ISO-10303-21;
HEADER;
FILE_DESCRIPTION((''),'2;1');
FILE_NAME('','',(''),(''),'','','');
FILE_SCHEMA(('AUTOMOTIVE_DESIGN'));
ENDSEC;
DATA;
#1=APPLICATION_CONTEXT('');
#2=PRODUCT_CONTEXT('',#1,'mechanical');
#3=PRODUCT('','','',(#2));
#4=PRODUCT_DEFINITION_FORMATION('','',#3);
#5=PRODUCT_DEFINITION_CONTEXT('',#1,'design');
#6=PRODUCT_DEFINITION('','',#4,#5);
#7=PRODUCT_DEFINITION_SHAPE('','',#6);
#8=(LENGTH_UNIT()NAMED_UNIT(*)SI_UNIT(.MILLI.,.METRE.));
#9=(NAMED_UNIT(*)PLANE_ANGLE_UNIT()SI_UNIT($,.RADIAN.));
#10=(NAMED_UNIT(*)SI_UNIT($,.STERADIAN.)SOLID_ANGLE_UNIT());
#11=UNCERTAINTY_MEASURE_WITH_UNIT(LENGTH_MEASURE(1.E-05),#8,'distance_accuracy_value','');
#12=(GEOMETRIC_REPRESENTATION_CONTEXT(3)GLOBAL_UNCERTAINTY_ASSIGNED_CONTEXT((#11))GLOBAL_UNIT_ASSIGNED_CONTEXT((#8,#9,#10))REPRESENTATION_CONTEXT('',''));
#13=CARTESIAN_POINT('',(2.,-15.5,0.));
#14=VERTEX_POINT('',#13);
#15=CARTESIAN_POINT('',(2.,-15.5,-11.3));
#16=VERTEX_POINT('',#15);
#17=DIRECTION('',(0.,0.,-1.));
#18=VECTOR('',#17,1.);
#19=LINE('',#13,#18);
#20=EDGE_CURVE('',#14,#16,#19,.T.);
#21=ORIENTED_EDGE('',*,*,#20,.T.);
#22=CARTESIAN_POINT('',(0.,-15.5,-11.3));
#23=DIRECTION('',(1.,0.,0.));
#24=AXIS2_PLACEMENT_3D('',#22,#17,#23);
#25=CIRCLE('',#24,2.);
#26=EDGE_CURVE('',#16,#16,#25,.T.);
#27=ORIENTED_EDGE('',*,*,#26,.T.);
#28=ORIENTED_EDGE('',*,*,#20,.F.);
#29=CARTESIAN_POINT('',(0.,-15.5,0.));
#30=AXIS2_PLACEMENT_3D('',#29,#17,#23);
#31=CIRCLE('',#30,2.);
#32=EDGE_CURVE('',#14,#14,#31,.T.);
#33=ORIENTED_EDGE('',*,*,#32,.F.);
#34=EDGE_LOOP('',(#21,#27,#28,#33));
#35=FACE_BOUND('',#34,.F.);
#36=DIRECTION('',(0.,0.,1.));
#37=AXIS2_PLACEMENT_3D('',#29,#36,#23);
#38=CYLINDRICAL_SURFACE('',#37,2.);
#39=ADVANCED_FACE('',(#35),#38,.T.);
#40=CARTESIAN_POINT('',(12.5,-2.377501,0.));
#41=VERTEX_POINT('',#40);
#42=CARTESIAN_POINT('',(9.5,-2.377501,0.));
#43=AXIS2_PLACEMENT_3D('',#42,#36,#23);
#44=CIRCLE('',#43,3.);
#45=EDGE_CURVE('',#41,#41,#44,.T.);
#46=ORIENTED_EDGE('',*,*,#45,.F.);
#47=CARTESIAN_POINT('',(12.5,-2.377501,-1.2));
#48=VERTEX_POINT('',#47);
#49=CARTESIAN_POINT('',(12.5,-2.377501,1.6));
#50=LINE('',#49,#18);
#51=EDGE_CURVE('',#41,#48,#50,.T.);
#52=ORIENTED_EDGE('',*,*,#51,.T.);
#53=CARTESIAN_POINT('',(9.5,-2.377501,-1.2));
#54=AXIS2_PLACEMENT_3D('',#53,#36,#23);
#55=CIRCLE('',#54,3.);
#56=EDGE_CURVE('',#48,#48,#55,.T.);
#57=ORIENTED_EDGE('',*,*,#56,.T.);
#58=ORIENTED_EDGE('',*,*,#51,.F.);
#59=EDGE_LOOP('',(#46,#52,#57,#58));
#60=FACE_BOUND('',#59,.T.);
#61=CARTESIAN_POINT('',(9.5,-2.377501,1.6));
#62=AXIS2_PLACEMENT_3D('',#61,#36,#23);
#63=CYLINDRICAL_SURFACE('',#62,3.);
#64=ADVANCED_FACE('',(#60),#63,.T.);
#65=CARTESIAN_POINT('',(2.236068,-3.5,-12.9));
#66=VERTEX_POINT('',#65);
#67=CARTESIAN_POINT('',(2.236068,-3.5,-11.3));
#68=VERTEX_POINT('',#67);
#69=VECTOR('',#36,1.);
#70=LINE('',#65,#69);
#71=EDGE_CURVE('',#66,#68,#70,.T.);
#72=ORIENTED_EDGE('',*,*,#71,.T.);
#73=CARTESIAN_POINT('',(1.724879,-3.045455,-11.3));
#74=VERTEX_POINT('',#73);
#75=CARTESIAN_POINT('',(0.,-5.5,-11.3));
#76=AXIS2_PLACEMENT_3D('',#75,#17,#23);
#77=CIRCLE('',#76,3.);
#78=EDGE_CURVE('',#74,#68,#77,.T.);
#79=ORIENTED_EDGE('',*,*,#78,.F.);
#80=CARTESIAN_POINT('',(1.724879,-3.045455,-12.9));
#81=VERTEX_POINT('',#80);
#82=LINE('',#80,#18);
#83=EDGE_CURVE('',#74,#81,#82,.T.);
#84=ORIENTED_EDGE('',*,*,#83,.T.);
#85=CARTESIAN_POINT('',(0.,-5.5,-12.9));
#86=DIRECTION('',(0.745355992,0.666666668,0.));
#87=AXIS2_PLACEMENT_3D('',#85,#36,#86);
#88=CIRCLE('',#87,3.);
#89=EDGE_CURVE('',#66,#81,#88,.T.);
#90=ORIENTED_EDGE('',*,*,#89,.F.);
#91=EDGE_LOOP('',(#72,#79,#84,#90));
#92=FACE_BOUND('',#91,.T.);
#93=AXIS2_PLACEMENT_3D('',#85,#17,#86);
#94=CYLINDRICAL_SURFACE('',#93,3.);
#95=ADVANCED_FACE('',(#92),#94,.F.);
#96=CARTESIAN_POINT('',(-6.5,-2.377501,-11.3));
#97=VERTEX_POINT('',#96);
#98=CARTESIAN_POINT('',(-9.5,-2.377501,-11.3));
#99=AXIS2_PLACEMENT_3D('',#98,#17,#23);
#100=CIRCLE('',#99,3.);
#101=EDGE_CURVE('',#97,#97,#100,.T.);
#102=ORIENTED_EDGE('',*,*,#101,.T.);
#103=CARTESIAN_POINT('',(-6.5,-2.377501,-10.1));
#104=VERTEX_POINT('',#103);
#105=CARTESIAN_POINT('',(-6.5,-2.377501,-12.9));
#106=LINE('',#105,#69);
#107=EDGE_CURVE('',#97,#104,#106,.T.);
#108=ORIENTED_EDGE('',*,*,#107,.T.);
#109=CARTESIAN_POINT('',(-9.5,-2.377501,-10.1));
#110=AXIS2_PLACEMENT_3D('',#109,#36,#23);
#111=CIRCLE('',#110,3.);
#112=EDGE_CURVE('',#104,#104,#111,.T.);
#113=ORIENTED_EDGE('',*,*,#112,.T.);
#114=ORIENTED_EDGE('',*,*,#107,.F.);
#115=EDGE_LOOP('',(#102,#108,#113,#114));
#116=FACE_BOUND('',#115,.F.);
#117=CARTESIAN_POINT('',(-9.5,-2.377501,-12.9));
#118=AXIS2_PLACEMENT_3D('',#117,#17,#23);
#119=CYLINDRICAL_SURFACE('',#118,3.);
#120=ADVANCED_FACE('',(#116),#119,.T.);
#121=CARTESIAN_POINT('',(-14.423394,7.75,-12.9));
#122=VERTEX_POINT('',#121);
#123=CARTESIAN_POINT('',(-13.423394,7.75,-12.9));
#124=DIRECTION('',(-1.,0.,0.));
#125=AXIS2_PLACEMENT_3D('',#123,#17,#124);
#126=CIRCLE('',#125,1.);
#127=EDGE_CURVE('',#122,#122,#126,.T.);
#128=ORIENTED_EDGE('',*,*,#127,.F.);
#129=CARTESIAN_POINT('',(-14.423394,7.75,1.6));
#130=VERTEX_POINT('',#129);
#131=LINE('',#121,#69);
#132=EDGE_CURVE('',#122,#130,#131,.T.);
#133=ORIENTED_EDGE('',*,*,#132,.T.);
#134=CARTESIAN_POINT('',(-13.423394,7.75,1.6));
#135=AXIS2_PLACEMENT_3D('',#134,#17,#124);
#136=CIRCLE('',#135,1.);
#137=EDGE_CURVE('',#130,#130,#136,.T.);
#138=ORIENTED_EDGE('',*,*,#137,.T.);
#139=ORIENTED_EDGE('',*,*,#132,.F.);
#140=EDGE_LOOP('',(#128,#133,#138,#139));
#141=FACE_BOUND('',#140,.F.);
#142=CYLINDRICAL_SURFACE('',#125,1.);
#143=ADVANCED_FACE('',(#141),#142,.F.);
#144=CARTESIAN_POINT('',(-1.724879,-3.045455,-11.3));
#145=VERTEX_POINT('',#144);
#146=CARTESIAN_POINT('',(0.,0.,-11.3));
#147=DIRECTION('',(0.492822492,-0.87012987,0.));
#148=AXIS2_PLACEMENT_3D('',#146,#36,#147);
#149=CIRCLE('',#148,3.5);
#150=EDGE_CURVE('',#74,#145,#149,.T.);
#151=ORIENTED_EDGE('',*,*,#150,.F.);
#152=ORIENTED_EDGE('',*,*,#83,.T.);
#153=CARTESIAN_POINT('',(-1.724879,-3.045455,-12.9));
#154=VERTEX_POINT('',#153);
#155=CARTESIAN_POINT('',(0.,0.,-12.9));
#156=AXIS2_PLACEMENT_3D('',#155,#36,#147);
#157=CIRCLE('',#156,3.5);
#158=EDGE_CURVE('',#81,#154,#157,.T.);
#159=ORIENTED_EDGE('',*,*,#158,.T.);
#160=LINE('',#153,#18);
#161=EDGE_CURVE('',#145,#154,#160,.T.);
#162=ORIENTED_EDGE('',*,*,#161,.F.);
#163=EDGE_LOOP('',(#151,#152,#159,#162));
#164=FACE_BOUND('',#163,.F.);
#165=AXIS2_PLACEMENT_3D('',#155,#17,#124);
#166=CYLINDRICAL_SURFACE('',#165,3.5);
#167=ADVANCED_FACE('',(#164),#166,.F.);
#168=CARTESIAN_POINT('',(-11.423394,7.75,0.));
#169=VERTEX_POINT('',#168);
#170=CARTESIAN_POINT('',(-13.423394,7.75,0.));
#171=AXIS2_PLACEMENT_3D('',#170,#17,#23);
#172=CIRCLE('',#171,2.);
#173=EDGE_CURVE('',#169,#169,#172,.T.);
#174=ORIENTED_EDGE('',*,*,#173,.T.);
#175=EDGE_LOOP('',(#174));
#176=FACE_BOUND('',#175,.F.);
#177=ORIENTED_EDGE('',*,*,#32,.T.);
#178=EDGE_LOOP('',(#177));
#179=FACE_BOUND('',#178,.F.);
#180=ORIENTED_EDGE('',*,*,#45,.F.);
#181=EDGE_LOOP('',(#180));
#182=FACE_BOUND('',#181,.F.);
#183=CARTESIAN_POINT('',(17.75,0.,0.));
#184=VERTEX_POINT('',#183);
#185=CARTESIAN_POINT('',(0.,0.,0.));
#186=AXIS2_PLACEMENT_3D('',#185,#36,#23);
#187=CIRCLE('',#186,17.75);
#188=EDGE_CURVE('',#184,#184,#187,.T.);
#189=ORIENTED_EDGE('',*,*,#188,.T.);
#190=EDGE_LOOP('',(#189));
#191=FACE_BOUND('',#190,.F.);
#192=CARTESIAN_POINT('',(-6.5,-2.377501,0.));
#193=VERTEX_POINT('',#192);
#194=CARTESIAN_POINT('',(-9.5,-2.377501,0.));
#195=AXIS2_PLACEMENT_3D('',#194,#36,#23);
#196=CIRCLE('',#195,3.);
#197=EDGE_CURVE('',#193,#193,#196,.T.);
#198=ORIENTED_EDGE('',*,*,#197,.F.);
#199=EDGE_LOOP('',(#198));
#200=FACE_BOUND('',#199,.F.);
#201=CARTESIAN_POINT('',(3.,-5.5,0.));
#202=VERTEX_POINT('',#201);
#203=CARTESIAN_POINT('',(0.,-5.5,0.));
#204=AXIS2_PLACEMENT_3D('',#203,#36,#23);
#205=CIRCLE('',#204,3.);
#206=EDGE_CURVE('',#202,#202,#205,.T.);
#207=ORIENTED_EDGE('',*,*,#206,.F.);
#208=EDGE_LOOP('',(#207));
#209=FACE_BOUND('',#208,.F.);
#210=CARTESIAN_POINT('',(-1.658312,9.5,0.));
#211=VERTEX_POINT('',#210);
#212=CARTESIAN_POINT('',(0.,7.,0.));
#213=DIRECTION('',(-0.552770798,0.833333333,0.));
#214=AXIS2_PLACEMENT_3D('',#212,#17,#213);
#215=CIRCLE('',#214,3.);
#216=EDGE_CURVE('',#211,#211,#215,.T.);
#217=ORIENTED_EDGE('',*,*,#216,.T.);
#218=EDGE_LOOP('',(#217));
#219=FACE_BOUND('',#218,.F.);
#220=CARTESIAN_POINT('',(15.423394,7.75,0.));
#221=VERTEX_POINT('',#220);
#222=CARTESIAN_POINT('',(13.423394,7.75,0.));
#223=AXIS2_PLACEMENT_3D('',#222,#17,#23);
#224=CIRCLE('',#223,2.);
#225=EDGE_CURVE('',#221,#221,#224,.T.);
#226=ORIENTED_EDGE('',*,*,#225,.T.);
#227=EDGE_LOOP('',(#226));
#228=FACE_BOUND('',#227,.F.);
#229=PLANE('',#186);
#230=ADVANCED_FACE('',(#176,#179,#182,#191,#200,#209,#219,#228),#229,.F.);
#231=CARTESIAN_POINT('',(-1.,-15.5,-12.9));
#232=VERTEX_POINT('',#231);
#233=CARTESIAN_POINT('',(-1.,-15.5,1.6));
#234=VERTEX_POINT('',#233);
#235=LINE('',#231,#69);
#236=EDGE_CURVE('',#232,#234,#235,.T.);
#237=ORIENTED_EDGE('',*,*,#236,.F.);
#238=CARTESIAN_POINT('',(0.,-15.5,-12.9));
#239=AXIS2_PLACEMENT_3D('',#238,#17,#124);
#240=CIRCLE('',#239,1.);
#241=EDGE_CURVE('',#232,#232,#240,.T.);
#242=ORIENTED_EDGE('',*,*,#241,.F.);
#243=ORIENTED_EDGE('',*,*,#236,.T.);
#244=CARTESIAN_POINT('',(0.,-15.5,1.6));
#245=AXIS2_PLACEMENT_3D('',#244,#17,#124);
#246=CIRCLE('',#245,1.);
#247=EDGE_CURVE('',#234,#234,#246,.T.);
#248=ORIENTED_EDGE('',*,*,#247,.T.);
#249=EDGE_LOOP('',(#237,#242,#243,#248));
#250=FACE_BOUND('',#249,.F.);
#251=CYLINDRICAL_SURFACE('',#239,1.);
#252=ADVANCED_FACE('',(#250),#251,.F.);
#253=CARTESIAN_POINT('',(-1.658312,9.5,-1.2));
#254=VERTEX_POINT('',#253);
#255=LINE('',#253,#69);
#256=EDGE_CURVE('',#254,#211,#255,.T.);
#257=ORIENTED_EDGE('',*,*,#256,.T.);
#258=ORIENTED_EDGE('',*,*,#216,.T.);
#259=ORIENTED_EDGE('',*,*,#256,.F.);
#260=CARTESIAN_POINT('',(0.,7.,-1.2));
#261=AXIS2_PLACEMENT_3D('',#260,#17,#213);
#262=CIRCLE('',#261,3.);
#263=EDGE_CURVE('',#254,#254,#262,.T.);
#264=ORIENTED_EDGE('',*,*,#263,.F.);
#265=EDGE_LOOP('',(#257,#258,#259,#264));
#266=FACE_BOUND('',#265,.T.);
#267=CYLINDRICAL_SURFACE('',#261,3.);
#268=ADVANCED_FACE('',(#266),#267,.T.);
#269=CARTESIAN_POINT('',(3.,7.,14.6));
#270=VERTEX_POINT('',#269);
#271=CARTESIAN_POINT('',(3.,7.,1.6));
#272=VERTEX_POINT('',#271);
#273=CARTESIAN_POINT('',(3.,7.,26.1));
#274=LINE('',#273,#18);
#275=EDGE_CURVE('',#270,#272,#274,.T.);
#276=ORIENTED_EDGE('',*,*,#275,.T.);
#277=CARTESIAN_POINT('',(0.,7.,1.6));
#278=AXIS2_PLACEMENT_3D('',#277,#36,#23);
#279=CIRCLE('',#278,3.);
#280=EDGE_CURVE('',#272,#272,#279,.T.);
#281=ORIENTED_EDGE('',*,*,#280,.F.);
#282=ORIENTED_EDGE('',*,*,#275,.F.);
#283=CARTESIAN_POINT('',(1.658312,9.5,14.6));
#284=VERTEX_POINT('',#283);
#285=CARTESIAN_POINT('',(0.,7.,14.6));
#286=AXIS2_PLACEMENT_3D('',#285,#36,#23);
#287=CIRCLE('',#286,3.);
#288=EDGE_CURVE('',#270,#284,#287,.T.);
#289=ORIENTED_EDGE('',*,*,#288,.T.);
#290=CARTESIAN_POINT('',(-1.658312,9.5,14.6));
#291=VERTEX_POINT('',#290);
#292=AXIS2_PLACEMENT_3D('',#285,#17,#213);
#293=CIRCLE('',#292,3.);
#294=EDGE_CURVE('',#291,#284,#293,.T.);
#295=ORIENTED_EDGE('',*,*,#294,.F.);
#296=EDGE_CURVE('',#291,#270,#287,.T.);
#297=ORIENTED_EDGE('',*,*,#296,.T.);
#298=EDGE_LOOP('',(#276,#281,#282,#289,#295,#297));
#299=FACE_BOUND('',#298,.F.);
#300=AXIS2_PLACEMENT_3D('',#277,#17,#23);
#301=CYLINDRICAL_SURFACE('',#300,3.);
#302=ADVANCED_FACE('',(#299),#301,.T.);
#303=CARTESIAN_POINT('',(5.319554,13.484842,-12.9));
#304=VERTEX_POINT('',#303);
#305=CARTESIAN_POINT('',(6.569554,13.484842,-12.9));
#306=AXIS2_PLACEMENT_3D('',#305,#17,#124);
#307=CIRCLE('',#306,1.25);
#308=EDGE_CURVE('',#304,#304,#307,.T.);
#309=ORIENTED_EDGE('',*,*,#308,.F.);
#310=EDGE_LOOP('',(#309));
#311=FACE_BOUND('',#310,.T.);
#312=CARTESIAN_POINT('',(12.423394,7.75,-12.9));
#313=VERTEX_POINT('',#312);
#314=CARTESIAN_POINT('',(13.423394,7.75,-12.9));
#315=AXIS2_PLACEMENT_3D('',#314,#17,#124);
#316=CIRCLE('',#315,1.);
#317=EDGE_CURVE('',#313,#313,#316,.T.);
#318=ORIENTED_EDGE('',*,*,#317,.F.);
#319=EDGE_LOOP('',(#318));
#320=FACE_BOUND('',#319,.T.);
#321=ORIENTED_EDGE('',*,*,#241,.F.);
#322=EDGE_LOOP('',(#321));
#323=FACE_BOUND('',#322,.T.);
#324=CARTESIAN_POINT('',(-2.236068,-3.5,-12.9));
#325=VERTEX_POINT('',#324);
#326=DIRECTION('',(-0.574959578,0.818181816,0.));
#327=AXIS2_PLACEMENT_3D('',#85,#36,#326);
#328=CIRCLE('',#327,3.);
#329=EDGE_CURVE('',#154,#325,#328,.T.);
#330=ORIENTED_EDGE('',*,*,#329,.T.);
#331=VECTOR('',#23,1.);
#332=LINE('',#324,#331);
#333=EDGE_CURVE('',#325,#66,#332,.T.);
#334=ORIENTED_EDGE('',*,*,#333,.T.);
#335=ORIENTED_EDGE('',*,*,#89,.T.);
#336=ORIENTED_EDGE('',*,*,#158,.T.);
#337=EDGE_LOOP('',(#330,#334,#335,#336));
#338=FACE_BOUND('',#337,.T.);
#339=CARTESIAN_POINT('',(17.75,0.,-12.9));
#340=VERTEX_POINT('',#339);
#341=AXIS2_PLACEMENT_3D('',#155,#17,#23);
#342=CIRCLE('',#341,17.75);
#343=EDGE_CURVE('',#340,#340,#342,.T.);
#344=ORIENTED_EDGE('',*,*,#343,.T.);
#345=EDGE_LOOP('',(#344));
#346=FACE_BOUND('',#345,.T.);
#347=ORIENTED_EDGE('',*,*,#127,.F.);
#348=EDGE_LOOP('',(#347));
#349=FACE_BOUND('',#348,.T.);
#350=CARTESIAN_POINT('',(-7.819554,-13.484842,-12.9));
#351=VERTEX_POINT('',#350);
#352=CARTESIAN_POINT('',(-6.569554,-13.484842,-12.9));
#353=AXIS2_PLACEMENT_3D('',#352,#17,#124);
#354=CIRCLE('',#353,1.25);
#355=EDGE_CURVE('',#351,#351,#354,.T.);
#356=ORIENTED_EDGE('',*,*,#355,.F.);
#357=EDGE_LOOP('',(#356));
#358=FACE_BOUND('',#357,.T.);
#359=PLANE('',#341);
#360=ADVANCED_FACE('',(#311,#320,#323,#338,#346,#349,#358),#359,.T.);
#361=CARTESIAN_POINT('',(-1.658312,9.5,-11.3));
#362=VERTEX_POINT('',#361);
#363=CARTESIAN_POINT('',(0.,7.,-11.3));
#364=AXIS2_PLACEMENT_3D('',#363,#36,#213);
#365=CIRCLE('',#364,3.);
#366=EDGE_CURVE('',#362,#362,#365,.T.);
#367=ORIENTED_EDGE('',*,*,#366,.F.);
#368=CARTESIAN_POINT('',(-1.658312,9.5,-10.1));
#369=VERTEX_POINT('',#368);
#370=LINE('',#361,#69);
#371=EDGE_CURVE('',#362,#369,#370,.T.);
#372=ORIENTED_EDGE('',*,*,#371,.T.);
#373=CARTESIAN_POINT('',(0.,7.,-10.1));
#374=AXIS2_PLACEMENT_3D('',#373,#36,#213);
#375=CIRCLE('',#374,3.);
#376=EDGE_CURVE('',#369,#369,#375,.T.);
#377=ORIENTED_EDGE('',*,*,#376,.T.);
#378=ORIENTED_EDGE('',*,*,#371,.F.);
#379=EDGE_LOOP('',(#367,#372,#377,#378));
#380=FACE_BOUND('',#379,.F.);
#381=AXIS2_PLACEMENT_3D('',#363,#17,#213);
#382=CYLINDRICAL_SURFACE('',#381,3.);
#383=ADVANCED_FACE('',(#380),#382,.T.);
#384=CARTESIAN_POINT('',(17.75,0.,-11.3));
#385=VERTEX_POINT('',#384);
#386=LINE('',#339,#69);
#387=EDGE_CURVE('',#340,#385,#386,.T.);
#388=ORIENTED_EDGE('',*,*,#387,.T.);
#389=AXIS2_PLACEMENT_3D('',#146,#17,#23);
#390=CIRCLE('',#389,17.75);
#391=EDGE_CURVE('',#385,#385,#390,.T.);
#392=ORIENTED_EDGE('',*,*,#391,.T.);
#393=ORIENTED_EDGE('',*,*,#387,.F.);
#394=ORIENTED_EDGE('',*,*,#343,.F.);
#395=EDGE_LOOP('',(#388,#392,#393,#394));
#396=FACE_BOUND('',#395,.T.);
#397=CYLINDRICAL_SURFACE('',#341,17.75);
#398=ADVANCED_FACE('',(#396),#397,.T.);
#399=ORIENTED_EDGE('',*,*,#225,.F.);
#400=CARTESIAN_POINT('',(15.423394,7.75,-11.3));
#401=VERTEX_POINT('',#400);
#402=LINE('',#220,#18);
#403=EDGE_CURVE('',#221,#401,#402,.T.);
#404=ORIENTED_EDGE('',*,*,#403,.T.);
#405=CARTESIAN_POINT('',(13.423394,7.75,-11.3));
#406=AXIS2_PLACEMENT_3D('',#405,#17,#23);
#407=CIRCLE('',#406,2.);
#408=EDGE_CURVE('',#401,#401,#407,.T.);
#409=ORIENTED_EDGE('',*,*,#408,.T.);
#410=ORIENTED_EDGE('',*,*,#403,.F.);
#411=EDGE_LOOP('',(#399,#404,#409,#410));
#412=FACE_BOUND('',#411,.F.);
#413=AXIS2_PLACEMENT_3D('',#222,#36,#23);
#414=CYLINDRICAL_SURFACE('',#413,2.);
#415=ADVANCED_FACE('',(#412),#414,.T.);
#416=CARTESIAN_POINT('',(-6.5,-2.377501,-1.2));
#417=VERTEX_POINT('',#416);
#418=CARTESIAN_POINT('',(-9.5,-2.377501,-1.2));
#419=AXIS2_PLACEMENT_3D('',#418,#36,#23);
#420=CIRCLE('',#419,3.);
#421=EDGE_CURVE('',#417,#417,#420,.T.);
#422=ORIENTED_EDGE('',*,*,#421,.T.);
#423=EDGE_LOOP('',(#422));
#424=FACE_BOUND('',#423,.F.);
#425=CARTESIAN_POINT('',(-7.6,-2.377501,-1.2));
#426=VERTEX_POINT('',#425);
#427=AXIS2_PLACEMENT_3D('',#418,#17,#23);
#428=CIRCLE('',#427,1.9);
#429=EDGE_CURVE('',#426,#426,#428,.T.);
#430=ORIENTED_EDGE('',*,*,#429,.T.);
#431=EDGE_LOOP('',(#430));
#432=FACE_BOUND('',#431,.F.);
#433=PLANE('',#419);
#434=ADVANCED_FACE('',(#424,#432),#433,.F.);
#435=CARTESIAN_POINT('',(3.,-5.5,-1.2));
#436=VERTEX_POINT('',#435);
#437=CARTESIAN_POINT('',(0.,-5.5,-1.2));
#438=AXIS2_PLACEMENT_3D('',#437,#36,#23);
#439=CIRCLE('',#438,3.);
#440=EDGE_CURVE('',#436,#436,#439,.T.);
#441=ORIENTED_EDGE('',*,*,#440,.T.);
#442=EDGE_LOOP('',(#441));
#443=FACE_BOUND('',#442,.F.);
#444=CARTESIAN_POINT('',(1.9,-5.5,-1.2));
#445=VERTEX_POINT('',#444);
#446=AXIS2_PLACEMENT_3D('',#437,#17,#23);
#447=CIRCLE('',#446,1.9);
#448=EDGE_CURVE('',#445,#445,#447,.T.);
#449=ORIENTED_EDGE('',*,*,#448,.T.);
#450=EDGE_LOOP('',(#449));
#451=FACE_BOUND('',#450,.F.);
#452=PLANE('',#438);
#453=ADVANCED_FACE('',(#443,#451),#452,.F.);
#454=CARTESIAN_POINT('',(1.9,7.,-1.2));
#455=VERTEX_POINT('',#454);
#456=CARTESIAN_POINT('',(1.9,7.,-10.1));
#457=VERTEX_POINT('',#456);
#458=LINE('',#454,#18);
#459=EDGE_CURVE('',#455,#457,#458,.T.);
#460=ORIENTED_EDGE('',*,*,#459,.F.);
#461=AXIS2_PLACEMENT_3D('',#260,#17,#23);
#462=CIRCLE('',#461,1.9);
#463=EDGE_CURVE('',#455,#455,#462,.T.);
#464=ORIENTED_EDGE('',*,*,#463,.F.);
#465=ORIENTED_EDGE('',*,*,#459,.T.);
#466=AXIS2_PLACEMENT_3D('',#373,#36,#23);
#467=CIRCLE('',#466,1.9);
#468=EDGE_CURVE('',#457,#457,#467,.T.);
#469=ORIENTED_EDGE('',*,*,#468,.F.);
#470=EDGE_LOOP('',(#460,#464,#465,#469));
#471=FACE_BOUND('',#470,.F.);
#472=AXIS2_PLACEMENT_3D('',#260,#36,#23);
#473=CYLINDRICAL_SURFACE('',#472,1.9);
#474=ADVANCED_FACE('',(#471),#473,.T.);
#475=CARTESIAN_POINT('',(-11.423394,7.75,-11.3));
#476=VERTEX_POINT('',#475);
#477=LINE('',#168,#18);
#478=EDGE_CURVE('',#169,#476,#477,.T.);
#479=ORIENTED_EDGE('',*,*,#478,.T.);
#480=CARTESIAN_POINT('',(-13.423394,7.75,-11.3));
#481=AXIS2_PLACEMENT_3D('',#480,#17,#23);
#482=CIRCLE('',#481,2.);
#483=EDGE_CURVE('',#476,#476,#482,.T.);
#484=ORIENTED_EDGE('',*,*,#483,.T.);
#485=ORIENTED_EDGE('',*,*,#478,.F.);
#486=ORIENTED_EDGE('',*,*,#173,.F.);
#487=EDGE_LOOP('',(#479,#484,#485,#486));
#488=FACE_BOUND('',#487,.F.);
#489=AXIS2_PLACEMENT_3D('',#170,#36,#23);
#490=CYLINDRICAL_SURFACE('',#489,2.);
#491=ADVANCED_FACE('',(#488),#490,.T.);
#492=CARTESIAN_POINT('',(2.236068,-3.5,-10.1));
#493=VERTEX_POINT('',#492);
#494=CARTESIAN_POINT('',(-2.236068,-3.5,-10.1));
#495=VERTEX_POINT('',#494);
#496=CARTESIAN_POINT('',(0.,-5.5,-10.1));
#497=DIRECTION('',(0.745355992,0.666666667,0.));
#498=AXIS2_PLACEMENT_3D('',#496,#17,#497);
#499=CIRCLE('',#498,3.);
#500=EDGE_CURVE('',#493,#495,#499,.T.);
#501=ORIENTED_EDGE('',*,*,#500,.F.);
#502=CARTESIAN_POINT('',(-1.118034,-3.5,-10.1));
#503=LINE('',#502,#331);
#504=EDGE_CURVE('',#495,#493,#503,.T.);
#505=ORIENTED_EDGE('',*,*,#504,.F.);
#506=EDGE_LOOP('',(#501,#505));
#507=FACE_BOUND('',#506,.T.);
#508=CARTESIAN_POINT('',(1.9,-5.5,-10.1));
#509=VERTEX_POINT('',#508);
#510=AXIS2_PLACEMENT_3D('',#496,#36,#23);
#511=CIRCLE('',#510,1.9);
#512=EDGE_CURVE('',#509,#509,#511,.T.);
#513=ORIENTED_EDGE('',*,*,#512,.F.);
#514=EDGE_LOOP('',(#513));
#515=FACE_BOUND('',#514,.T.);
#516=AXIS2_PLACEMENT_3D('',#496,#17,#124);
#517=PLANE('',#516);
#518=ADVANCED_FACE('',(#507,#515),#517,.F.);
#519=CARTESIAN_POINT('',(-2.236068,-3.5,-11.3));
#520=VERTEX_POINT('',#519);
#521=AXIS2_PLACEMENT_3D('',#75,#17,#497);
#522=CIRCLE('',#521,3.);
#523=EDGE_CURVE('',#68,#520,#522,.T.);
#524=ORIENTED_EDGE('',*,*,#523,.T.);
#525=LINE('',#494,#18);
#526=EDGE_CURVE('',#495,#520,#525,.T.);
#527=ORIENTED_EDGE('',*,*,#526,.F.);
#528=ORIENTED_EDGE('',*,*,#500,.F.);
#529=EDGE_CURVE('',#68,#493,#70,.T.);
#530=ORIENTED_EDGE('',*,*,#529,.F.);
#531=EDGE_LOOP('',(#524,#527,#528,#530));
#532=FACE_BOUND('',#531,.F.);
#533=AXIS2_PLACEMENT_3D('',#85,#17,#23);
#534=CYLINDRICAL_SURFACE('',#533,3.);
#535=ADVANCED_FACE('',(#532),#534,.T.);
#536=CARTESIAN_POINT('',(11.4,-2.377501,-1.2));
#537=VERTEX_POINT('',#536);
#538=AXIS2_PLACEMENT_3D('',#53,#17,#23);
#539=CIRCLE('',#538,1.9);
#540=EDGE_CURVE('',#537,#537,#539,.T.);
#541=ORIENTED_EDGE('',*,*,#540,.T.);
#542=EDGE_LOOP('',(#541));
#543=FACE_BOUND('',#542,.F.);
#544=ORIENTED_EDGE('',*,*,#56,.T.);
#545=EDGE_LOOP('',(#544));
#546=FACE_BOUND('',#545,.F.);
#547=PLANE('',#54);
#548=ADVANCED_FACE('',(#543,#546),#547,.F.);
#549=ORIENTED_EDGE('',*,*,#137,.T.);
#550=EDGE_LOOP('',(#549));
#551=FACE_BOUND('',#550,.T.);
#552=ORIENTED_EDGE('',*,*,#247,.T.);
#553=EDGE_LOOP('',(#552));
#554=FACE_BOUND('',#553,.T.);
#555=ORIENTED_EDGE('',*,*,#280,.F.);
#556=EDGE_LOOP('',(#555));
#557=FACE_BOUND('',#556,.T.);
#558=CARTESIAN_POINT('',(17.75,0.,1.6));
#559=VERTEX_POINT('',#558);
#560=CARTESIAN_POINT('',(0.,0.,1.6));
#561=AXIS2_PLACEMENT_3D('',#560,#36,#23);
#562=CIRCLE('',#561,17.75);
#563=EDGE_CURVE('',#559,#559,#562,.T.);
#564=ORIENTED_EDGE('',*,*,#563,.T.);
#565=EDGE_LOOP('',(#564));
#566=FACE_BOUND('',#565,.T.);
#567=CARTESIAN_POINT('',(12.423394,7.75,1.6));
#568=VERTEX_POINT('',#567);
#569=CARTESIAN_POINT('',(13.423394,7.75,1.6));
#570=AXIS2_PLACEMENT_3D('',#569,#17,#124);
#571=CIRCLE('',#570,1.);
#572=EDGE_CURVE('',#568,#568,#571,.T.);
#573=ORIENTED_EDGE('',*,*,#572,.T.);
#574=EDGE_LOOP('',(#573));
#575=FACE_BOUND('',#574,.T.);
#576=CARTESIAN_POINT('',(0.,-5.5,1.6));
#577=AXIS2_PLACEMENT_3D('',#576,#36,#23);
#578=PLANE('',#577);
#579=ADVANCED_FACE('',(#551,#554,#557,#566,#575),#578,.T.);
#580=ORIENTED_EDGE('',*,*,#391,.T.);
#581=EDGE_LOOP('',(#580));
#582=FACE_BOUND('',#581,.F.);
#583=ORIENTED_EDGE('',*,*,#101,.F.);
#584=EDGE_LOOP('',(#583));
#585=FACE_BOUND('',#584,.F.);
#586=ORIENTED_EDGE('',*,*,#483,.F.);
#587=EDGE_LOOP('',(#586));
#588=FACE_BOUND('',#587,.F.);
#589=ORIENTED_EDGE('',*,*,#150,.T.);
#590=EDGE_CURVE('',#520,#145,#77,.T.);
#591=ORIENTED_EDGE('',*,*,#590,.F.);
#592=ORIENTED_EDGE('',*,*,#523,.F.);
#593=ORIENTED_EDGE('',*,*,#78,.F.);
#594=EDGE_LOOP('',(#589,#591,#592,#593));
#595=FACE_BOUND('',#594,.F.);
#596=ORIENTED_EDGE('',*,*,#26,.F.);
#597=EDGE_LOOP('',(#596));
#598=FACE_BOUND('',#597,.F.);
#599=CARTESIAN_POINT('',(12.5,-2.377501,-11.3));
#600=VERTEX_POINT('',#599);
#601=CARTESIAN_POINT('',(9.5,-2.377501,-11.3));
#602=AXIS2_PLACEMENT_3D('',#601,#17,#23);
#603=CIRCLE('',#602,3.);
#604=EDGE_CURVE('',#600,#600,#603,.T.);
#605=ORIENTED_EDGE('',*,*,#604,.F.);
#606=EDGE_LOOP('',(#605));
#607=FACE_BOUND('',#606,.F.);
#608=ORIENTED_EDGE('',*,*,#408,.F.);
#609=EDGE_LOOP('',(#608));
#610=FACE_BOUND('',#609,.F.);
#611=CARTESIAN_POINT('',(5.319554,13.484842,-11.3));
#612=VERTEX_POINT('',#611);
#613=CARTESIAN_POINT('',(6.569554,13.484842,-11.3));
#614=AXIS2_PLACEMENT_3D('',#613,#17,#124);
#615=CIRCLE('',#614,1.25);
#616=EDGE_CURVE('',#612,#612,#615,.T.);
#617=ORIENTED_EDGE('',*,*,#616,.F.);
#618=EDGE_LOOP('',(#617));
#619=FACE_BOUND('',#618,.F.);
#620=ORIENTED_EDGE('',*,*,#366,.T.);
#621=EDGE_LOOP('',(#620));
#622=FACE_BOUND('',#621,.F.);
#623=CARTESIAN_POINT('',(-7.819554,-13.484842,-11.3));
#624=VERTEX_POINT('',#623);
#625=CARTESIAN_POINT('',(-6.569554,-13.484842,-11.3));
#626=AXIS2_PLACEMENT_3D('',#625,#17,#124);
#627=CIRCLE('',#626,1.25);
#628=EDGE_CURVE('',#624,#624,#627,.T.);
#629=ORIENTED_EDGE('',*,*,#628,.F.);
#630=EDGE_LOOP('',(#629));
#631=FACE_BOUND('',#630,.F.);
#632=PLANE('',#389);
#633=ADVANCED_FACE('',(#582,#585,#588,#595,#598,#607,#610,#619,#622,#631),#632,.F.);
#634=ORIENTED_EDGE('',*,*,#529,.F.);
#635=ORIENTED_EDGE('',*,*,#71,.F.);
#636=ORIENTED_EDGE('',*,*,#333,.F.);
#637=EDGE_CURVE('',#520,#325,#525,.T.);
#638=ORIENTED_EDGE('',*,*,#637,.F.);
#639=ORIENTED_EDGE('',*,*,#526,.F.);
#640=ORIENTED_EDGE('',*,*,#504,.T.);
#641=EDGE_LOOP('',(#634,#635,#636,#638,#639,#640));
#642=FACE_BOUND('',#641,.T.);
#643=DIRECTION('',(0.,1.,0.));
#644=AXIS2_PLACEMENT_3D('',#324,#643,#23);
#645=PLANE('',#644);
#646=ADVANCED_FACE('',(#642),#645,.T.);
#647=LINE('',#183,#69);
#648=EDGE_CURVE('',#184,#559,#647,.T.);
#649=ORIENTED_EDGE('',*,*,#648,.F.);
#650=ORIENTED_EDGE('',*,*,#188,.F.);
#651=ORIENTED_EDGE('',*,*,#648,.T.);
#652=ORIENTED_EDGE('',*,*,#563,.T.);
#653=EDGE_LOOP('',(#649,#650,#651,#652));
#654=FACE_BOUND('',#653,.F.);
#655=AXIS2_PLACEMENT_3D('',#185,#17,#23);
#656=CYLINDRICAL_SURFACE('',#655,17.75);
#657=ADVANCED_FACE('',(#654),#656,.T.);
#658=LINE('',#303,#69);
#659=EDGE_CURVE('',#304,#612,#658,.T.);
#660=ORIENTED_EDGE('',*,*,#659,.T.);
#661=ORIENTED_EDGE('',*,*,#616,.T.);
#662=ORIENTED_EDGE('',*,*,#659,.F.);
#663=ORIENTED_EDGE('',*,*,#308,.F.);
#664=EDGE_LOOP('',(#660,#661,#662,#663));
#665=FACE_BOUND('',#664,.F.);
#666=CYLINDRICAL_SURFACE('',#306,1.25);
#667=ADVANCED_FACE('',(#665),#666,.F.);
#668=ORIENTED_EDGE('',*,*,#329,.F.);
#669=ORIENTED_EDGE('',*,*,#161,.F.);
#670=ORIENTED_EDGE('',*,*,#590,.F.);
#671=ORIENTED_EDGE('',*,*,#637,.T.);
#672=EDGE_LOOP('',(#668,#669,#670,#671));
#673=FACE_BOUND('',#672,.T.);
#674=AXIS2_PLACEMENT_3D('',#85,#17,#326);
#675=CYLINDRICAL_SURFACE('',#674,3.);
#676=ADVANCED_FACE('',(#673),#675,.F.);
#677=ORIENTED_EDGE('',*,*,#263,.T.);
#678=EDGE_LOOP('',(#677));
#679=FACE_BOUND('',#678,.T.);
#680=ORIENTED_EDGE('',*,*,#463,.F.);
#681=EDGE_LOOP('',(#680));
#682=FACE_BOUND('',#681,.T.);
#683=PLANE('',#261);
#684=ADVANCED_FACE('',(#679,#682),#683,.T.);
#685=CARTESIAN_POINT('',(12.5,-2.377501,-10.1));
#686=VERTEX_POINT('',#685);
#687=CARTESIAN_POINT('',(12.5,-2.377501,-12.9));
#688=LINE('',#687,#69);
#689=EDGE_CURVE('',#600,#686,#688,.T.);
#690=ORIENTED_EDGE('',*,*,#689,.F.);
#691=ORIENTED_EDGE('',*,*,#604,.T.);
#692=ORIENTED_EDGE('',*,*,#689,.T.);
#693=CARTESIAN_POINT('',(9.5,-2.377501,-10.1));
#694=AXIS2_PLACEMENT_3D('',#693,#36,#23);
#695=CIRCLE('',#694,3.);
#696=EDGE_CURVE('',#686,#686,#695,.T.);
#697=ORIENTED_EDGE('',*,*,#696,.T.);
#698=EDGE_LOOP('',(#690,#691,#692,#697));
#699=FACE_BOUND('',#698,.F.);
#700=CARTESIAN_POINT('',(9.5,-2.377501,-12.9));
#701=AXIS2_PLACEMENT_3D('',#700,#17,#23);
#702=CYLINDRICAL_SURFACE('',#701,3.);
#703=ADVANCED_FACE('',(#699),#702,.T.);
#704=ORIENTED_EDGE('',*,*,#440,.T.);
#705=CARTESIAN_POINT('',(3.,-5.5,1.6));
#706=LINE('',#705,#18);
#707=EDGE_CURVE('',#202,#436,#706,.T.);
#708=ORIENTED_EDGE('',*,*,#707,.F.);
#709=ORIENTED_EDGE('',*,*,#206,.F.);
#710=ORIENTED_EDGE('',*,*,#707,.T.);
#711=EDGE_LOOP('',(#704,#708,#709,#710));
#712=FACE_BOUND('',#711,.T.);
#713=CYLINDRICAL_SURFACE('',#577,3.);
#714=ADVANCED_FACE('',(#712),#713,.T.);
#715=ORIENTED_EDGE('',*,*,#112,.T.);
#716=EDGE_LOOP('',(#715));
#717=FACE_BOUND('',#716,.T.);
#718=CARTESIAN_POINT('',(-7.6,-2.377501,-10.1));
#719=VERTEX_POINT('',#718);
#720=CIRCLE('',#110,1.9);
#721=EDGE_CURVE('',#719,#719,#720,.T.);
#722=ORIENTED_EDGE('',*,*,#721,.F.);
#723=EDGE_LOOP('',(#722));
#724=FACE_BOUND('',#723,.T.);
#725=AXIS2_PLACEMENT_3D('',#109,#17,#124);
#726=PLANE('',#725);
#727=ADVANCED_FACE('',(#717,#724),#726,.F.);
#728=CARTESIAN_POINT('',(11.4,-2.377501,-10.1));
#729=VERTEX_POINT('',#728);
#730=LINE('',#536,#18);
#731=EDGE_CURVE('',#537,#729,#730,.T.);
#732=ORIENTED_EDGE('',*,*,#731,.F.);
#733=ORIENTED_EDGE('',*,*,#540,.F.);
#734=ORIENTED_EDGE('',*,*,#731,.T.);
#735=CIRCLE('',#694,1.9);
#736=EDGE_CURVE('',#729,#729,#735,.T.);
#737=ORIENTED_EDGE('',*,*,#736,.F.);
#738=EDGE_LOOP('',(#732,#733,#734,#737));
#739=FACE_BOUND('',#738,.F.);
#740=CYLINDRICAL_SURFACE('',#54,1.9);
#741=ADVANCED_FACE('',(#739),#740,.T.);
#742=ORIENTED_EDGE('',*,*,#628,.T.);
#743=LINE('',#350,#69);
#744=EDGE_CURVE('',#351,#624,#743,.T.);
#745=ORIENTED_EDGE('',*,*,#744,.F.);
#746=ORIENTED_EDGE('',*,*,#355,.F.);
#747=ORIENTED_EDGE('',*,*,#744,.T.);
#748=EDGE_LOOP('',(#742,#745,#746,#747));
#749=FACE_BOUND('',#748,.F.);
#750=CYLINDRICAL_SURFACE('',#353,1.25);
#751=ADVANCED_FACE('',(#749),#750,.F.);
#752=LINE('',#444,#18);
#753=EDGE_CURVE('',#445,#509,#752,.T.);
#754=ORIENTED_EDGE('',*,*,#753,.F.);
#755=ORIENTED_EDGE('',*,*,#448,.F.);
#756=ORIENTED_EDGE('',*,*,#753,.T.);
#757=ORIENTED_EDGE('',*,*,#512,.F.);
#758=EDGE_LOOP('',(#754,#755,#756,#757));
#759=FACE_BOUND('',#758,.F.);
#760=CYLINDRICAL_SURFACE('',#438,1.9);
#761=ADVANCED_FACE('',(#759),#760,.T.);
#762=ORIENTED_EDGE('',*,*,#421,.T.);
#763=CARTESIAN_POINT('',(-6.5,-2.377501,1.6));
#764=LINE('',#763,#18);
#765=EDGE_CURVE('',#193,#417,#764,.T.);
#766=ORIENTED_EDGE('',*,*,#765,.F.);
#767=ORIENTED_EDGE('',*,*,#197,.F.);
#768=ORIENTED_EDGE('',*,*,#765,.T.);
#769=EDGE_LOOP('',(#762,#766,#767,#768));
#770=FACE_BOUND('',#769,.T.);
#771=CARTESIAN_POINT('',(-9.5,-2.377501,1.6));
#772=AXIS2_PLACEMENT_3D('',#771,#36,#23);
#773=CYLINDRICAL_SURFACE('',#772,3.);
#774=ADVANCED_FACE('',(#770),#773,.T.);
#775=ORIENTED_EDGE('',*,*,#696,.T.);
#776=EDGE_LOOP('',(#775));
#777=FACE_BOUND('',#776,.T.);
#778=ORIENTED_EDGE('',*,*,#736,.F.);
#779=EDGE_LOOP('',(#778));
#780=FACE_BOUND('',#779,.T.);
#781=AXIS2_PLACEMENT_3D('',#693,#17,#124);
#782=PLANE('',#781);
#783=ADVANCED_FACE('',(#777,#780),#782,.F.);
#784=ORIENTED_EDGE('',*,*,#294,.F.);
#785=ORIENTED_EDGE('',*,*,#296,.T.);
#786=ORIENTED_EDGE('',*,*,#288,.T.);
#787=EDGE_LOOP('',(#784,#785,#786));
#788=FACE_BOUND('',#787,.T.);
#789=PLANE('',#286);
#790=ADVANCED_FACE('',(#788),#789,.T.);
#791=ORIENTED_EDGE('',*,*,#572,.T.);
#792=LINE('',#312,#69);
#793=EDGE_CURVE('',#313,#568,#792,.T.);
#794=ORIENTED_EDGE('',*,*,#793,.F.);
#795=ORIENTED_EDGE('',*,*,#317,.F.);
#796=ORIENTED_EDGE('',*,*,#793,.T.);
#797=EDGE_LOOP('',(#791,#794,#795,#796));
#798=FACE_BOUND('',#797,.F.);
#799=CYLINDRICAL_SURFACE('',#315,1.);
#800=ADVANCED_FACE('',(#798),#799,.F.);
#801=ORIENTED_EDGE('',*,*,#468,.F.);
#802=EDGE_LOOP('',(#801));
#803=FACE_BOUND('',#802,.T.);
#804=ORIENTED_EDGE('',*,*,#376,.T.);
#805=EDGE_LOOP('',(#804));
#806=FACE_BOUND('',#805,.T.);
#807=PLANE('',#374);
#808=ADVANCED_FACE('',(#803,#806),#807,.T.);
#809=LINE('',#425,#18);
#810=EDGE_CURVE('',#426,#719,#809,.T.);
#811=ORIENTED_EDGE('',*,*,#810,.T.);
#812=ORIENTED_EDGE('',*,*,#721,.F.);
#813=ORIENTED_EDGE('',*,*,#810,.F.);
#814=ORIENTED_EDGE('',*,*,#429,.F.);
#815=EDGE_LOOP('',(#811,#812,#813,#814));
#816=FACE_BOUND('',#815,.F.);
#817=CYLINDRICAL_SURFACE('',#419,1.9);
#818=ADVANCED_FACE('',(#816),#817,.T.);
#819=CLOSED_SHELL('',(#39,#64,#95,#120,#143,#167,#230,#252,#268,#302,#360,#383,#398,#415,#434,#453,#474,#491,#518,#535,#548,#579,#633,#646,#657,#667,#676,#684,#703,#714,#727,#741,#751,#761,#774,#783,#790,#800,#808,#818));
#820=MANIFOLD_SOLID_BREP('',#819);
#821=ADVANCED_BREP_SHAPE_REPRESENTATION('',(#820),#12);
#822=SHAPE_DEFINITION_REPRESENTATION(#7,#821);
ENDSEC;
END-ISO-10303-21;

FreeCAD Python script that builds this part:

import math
import FreeCAD as App
import Part
import Sketcher


def edges_at(feature, points):
    """Names of the edges that pass closest to the given points."""
    edges = feature.Shape.Edges
    near = lambda p: min(range(len(edges)), key=lambda i: edges[i].distToShape(Part.Vertex(*p))[0])
    return sorted({f"Edge{near(p) + 1}" for p in points})

doc = App.newDocument("Part")
body = doc.addObject("PartDesign::Body", "Body")

# Sketch on XY plane
sketch1 = body.newObject("Sketcher::SketchObject", "Sketch")
sketch1.AttachmentSupport = (doc.getObject("XY_Plane"), [""])
sketch1.MapMode = "FlatFace"
sketch1.addGeometry(Part.Circle(App.Vector(0, 0, 0), App.Vector(0, 0, 1), 18), False)
sketch1.addConstraint([
    Sketcher.Constraint("Coincident", 0, 3, -1, 1),
    Sketcher.Constraint("Diameter", 0, 35.5),
])
pad1 = body.newObject("PartDesign::Pad", "Pad")
pad1.Profile = sketch1
pad1.Length = 1.6

# Sketch on XY plane
sketch2 = body.newObject("Sketcher::SketchObject", "Sketch001")
sketch2.AttachmentSupport = (doc.getObject("XY_Plane"), [""])
sketch2.MapMode = "FlatFace"
sketch2.addGeometry([
    Part.Circle(App.Vector(0, -15.5, 0), App.Vector(0, 0, 1), 2),
    Part.Circle(App.Vector(13.4, 7.8, 0), App.Vector(0, 0, 1), 2),
    Part.Circle(App.Vector(-13.4, 7.8, 0), App.Vector(0, 0, 1), 2),
], False)
sketch2.addConstraint([
    Sketcher.Constraint("Equal", 0, 1),
    Sketcher.Constraint("Equal", 1, 2),
    Sketcher.Constraint("Symmetric", 1, 3, 2, 3, -2),
    Sketcher.Constraint("PointOnObject", 0, 3, -2),
    Sketcher.Constraint("Diameter", 0, 4.0),
    Sketcher.Constraint("DistanceY", 0, 3, -1, 1, 15.5),
    Sketcher.Constraint("DistanceY", -1, 1, 1, 3, 7.75),
    Sketcher.Constraint("DistanceX", -1, 1, 1, 3, 13.423394),
])
pad2 = body.newObject("PartDesign::Pad", "Pad001")
pad2.Profile = sketch2
pad2.Length = 11.3
pad2.Reversed = True

# Sketch on XY plane
sketch3 = body.newObject("Sketcher::SketchObject", "Sketch002")
sketch3.AttachmentSupport = (doc.getObject("XY_Plane"), [""])
sketch3.MapMode = "FlatFace"
sketch3.AttachmentOffset = App.Placement(App.Vector(0, 0, -12.9), App.Rotation())
sketch3.addGeometry(Part.Circle(App.Vector(0, 0, 0), App.Vector(0, 0, 1), 18), False)
sketch3.addConstraint([
    Sketcher.Constraint("Coincident", 0, 3, -1, 1),
    Sketcher.Constraint("Diameter", 0, 35.5),
])
pad3 = body.newObject("PartDesign::Pad", "Pad002")
pad3.Profile = sketch3
pad3.Length = 1.6

# Sketch on XY plane
sketch4 = body.newObject("Sketcher::SketchObject", "Sketch003")
sketch4.AttachmentSupport = (doc.getObject("XY_Plane"), [""])
sketch4.MapMode = "FlatFace"
sketch4.AttachmentOffset = App.Placement(App.Vector(0, 0, -12.9), App.Rotation())
sketch4.addGeometry(Part.Circle(App.Vector(0, 0, 0), App.Vector(0, 0, 1), 3.5), False)
sketch4.addConstraint([
    Sketcher.Constraint("Coincident", 0, 3, -1, 1),
    Sketcher.Constraint("Diameter", 0, 7.0),
])
pocket1 = body.newObject("PartDesign::Pocket", "Pocket")
pocket1.Profile = sketch4
pocket1.Type = "UpToFirst"
pocket1.Reversed = True

# Sketch on XY plane
sketch5 = body.newObject("Sketcher::SketchObject", "Sketch004")
sketch5.AttachmentSupport = (doc.getObject("XY_Plane"), [""])
sketch5.MapMode = "FlatFace"
sketch5.AttachmentOffset = App.Placement(App.Vector(0, 0, -12.9), App.Rotation())
sketch5.addGeometry(Part.Circle(App.Vector(13.4, 7.8, 0), App.Vector(0, 0, 1), 1), False)
sketch5.addConstraint([
    Sketcher.Constraint("Diameter", 0, 2.0),
    Sketcher.Constraint("DistanceY", -1, 1, 0, 3, 7.75),
    Sketcher.Constraint("DistanceX", -1, 1, 0, 3, 13.423394),
])
pocket2 = body.newObject("PartDesign::Pocket", "Pocket001")
pocket2.Profile = sketch5
pocket2.Type = "UpToFirst"
pocket2.Reversed = True

# Sketch on XY plane
sketch6 = body.newObject("Sketcher::SketchObject", "Sketch005")
sketch6.AttachmentSupport = (doc.getObject("XY_Plane"), [""])
sketch6.MapMode = "FlatFace"
sketch6.AttachmentOffset = App.Placement(App.Vector(0, 0, -12.9), App.Rotation())
sketch6.addGeometry(Part.Circle(App.Vector(-13.4, 7.8, 0), App.Vector(0, 0, 1), 1), False)
sketch6.addConstraint([
    Sketcher.Constraint("Diameter", 0, 2.0),
    Sketcher.Constraint("DistanceY", -1, 1, 0, 3, 7.75),
    Sketcher.Constraint("DistanceX", 0, 3, -1, 1, 13.423394),
])
pocket3 = body.newObject("PartDesign::Pocket", "Pocket002")
pocket3.Profile = sketch6
pocket3.Type = "UpToFirst"
pocket3.Reversed = True

# Sketch on XY plane
sketch7 = body.newObject("Sketcher::SketchObject", "Sketch006")
sketch7.AttachmentSupport = (doc.getObject("XY_Plane"), [""])
sketch7.MapMode = "FlatFace"
sketch7.AttachmentOffset = App.Placement(App.Vector(0, 0, -12.9), App.Rotation())
sketch7.addGeometry(Part.Circle(App.Vector(0, -15.5, 0), App.Vector(0, 0, 1), 1), False)
sketch7.addConstraint([
    Sketcher.Constraint("PointOnObject", 0, 3, -2),
    Sketcher.Constraint("Diameter", 0, 2.0),
    Sketcher.Constraint("DistanceY", 0, 3, -1, 1, 15.5),
])
pocket4 = body.newObject("PartDesign::Pocket", "Pocket003")
pocket4.Profile = sketch7
pocket4.Type = "UpToFirst"
pocket4.Reversed = True

# Sketch on XY plane
sketch8 = body.newObject("Sketcher::SketchObject", "Sketch007")
sketch8.AttachmentSupport = (doc.getObject("XY_Plane"), [""])
sketch8.MapMode = "FlatFace"
sketch8.AttachmentOffset = App.Placement(App.Vector(0, 0, 1.6), App.Rotation())
sketch8.addGeometry(Part.Circle(App.Vector(0, 7, 0), App.Vector(0, 0, 1), 6), False)
sketch8.addConstraint([
    Sketcher.Constraint("PointOnObject", 0, 3, -2),
    Sketcher.Constraint("Diameter", 0, 12.0),
    Sketcher.Constraint("DistanceY", -1, 1, 0, 3, 7.0),
])
pad4 = body.newObject("PartDesign::Pad", "Pad003")
pad4.Profile = sketch8
pad4.Length = 10

# Sketch on XY plane
sketch9 = body.newObject("Sketcher::SketchObject", "Sketch008")
sketch9.AttachmentSupport = (doc.getObject("XY_Plane"), [""])
sketch9.MapMode = "FlatFace"
sketch9.AttachmentOffset = App.Placement(App.Vector(0, 0, 11.6), App.Rotation())
sketch9.addGeometry(Part.Circle(App.Vector(0, 7, 0), App.Vector(0, 0, 1), 3), False)
sketch9.addConstraint([
    Sketcher.Constraint("PointOnObject", 0, 3, -2),
    Sketcher.Constraint("Diameter", 0, 6.0),
    Sketcher.Constraint("DistanceY", -1, 1, 0, 3, 7.0),
])
pad5 = body.newObject("PartDesign::Pad", "Pad004")
pad5.Profile = sketch9
pad5.Length = 15
doc.recompute()

chamfer = body.newObject("PartDesign::Chamfer", "Chamfer")
chamfer.Base = (pad5, edges_at(pad5, [(-3, 7, 26.6)]))
chamfer.Size = 0.5

# Sketch on XY plane
sketch10 = body.newObject("Sketcher::SketchObject", "Sketch009")
sketch10.AttachmentSupport = (doc.getObject("XY_Plane"), [""])
sketch10.MapMode = "FlatFace"
sketch10.AttachmentOffset = App.Placement(App.Vector(0, 0, 14.6), App.Rotation())
sketch10.addGeometry([
    Part.LineSegment(App.Vector(-1.7, 9.5, 0), App.Vector(1.7, 9.5, 0)),
    Part.ArcOfCircle(Part.Circle(App.Vector(0, 7, 0), App.Vector(0, 0, 1), 3), math.radians(56), math.radians(124)),
], False)
sketch10.addConstraint([
    Sketcher.Constraint("Coincident", 0, 1, 1, 2),
    Sketcher.Constraint("Coincident", 1, 1, 0, 2),
    Sketcher.Constraint("Horizontal", 0),
    Sketcher.Constraint("PointOnObject", 1, 3, -2),
    Sketcher.Constraint("Radius", 1, 3.0),
    Sketcher.Constraint("DistanceY", -1, 1, 1, 3, 7.0),
    Sketcher.Constraint("DistanceY", -1, 1, 0, 1, 9.5),
])
pocket5 = body.newObject("PartDesign::Pocket", "Pocket004")
pocket5.Profile = sketch10
pocket5.Length = 12
pocket5.Reversed = True

# Sketch on XY plane
sketch11 = body.newObject("Sketcher::SketchObject", "Sketch010")
sketch11.AttachmentSupport = (doc.getObject("XY_Plane"), [""])
sketch11.MapMode = "FlatFace"
sketch11.AttachmentOffset = App.Placement(App.Vector(0, 0, 1.6), App.Rotation())
sketch11.addGeometry([
    Part.Circle(App.Vector(0, -5.5, 0), App.Vector(0, 0, 1), 3),
    Part.Circle(App.Vector(9.5, -2.4, 0), App.Vector(0, 0, 1), 3),
    Part.Circle(App.Vector(-9.5, -2.4, 0), App.Vector(0, 0, 1), 3),
], False)
sketch11.addConstraint([
    Sketcher.Constraint("Equal", 0, 1),
    Sketcher.Constraint("Equal", 1, 2),
    Sketcher.Constraint("Symmetric", 1, 3, 2, 3, -2),
    Sketcher.Constraint("PointOnObject", 0, 3, -2),
    Sketcher.Constraint("Diameter", 0, 6.0),
    Sketcher.Constraint("DistanceX", 2, 3, 1, 3, 19.0),
    Sketcher.Constraint("DistanceY", 0, 3, -1, 1, 5.5),
    Sketcher.Constraint("DistanceY", 1, 3, -1, 1, 2.377501),
])
pad6 = body.newObject("PartDesign::Pad", "Pad005")
pad6.Profile = sketch11
pad6.Length = 2.8
pad6.Reversed = True
doc.recompute()

datumplane = body.newObject("PartDesign::Plane", "DatumPlane")
datumplane.AttachmentSupport = (doc.getObject("XY_Plane"), [""])
datumplane.MapMode = "FlatFace"
datumplane.AttachmentOffset = App.Placement(App.Vector(0, 0, -5.65), App.Rotation())
mirrored = body.newObject("PartDesign::Mirrored", "Mirrored")
mirrored.Originals = [pad6]
mirrored.MirrorPlane = (datumplane, [""])
body.Tip = mirrored

# Sketch on XY plane
sketch12 = body.newObject("Sketcher::SketchObject", "Sketch011")
sketch12.AttachmentSupport = (doc.getObject("XY_Plane"), [""])
sketch12.MapMode = "FlatFace"
sketch12.AttachmentOffset = App.Placement(App.Vector(0, 0, -1.2), App.Rotation())
sketch12.addGeometry(Part.Circle(App.Vector(9.5, -2.4, 0), App.Vector(0, 0, 1), 1.9), False)
sketch12.addConstraint([
    Sketcher.Constraint("Diameter", 0, 3.8),
    Sketcher.Constraint("DistanceX", -1, 1, 0, 3, 9.5),
    Sketcher.Constraint("DistanceY", 0, 3, -1, 1, 2.377501),
])
pad7 = body.newObject("PartDesign::Pad", "Pad006")
pad7.Profile = sketch12
pad7.Type = "UpToFirst"
pad7.Reversed = True

# Sketch on XY plane
sketch13 = body.newObject("Sketcher::SketchObject", "Sketch012")
sketch13.AttachmentSupport = (doc.getObject("XY_Plane"), [""])
sketch13.MapMode = "FlatFace"
sketch13.AttachmentOffset = App.Placement(App.Vector(0, 0, -1.2), App.Rotation())
sketch13.addGeometry(Part.Circle(App.Vector(0, -5.5, 0), App.Vector(0, 0, 1), 1.9), False)
sketch13.addConstraint([
    Sketcher.Constraint("PointOnObject", 0, 3, -2),
    Sketcher.Constraint("Diameter", 0, 3.8),
    Sketcher.Constraint("DistanceY", 0, 3, -1, 1, 5.5),
])
pad8 = body.newObject("PartDesign::Pad", "Pad007")
pad8.Profile = sketch13
pad8.Type = "UpToFirst"
pad8.Reversed = True

# Sketch on XY plane
sketch14 = body.newObject("Sketcher::SketchObject", "Sketch013")
sketch14.AttachmentSupport = (doc.getObject("XY_Plane"), [""])
sketch14.MapMode = "FlatFace"
sketch14.AttachmentOffset = App.Placement(App.Vector(0, 0, -1.2), App.Rotation())
sketch14.addGeometry(Part.Circle(App.Vector(-9.5, -2.4, 0), App.Vector(0, 0, 1), 1.9), False)
sketch14.addConstraint([
    Sketcher.Constraint("Diameter", 0, 3.8),
    Sketcher.Constraint("DistanceX", 0, 3, -1, 1, 9.5),
    Sketcher.Constraint("DistanceY", 0, 3, -1, 1, 2.377501),
])
pad9 = body.newObject("PartDesign::Pad", "Pad008")
pad9.Profile = sketch14
pad9.Type = "UpToFirst"
pad9.Reversed = True

# Sketch on XY plane
sketch15 = body.newObject("Sketcher::SketchObject", "Sketch014")
sketch15.AttachmentSupport = (doc.getObject("XY_Plane"), [""])
sketch15.MapMode = "FlatFace"
sketch15.AttachmentOffset = App.Placement(App.Vector(0, 0, -12.9), App.Rotation())
sketch15.addGeometry([
    Part.LineSegment(App.Vector(2.2, -3.5, 0), App.Vector(-2.2, -3.5, 0)),
    Part.ArcOfCircle(Part.Circle(App.Vector(0, -5.5, 0), App.Vector(0, 0, 1), 3), math.radians(125.1), math.radians(138.19)),
    Part.ArcOfCircle(Part.Circle(App.Vector(0, -5.5, 0), App.Vector(0, 0, 1), 3), math.radians(55), math.radians(125)),
    Part.ArcOfCircle(Part.Circle(App.Vector(0, -5.5, 0), App.Vector(0, 0, 1), 3), math.radians(41.81), math.radians(54.9)),
], False)
sketch15.addConstraint([
    Sketcher.Constraint("Coincident", 0, 2, 1, 2),
    Sketcher.Constraint("Tangent", 1, 1, 2, 2),
    Sketcher.Constraint("Tangent", 2, 1, 3, 2),
    Sketcher.Constraint("Coincident", 3, 1, 0, 1),
    Sketcher.Constraint("Horizontal", 0),
    Sketcher.Constraint("Coincident", 3, 3, 1, 3),
    Sketcher.Constraint("Symmetric", 1, 1, 2, 1, -2),
    Sketcher.Constraint("Radius", 1, 3.0),
    Sketcher.Constraint("DistanceY", 3, 3, 0, 2, 2.0),
    Sketcher.Constraint("DistanceY", 1, 3, -1, 1, 5.5),
    Sketcher.Constraint("DistanceX", 1, 1, -1, 1, 1.724879),
])
pocket6 = body.newObject("PartDesign::Pocket", "Pocket005")
pocket6.Profile = sketch15
pocket6.Type = "UpToFirst"
pocket6.Reversed = True

# Sketch on XY plane
sketch16 = body.newObject("Sketcher::SketchObject", "Sketch015")
sketch16.AttachmentSupport = (doc.getObject("XY_Plane"), [""])
sketch16.MapMode = "FlatFace"
sketch16.AttachmentOffset = App.Placement(App.Vector(0, 0, -12.9), App.Rotation())
sketch16.addGeometry(Part.Circle(App.Vector(6.6, 13.5, 0), App.Vector(0, 0, 1), 1.2), False)
sketch16.addConstraint([
    Sketcher.Constraint("Diameter", 0, 2.5),
    Sketcher.Constraint("DistanceY", -1, 1, 0, 3, 13.484842),
    Sketcher.Constraint("DistanceX", -1, 1, 0, 3, 6.569554),
])
pocket7 = body.newObject("PartDesign::Pocket", "Pocket006")
pocket7.Profile = sketch16
pocket7.Type = "UpToFirst"
pocket7.Reversed = True

# Sketch on XY plane
sketch17 = body.newObject("Sketcher::SketchObject", "Sketch016")
sketch17.AttachmentSupport = (doc.getObject("XY_Plane"), [""])
sketch17.MapMode = "FlatFace"
sketch17.AttachmentOffset = App.Placement(App.Vector(0, 0, -12.9), App.Rotation())
sketch17.addGeometry(Part.Circle(App.Vector(-6.6, -13.5, 0), App.Vector(0, 0, 1), 1.2), False)
sketch17.addConstraint([
    Sketcher.Constraint("Diameter", 0, 2.5),
    Sketcher.Constraint("DistanceY", 0, 3, -1, 1, 13.484842),
    Sketcher.Constraint("DistanceX", 0, 3, -1, 1, 6.569554),
])
pocket8 = body.newObject("PartDesign::Pocket", "Pocket007")
pocket8.Profile = sketch17
pocket8.Type = "UpToFirst"
pocket8.Reversed = True
doc.recompute()

chamfer2 = body.newObject("PartDesign::Chamfer", "Chamfer001")
chamfer2.Base = (pocket8, edges_at(pocket8, [(-6, 7, 11.6)]))
chamfer2.Size = 0.5

# Sketch on XY plane
sketch18 = body.newObject("Sketcher::SketchObject", "Sketch017")
sketch18.AttachmentSupport = (doc.getObject("XY_Plane"), [""])
sketch18.MapMode = "FlatFace"
sketch18.AttachmentOffset = App.Placement(App.Vector(0, 0, -1.2), App.Rotation())
sketch18.addGeometry(Part.Circle(App.Vector(0, 7, 0), App.Vector(0, 0, 1), 3), False)
sketch18.addConstraint([
    Sketcher.Constraint("PointOnObject", 0, 3, -2),
    Sketcher.Constraint("Diameter", 0, 6.0),
    Sketcher.Constraint("DistanceY", -1, 1, 0, 3, 7.0),
])
pad10 = body.newObject("PartDesign::Pad", "Pad009")
pad10.Profile = sketch18
pad10.Length = 1.2

# Sketch on XY plane
sketch19 = body.newObject("Sketcher::SketchObject", "Sketch018")
sketch19.AttachmentSupport = (doc.getObject("XY_Plane"), [""])
sketch19.MapMode = "FlatFace"
sketch19.AttachmentOffset = App.Placement(App.Vector(0, 0, -1.2), App.Rotation())
sketch19.addGeometry(Part.Circle(App.Vector(0, 7, 0), App.Vector(0, 0, 1), 1.9), False)
sketch19.addConstraint([
    Sketcher.Constraint("PointOnObject", 0, 3, -2),
    Sketcher.Constraint("Diameter", 0, 3.8),
    Sketcher.Constraint("DistanceY", -1, 1, 0, 3, 7.0),
])
pad11 = body.newObject("PartDesign::Pad", "Pad010")
pad11.Profile = sketch19
pad11.Type = "UpToFirst"
pad11.Reversed = True

# Sketch on XY plane
sketch20 = body.newObject("Sketcher::SketchObject", "Sketch019")
sketch20.AttachmentSupport = (doc.getObject("XY_Plane"), [""])
sketch20.MapMode = "FlatFace"
sketch20.AttachmentOffset = App.Placement(App.Vector(0, 0, -11.3), App.Rotation())
sketch20.addGeometry(Part.Circle(App.Vector(0, 7, 0), App.Vector(0, 0, 1), 3), False)
sketch20.addConstraint([
    Sketcher.Constraint("PointOnObject", 0, 3, -2),
    Sketcher.Constraint("Diameter", 0, 6.0),
    Sketcher.Constraint("DistanceY", -1, 1, 0, 3, 7.0),
])
pad12 = body.newObject("PartDesign::Pad", "Pad011")
pad12.Profile = sketch20
pad12.Length = 1.2

# Sketch on XY plane
sketch21 = body.newObject("Sketcher::SketchObject", "Sketch020")
sketch21.AttachmentSupport = (doc.getObject("XY_Plane"), [""])
sketch21.MapMode = "FlatFace"
sketch21.AttachmentOffset = App.Placement(App.Vector(0, 0, 1.6), App.Rotation())
sketch21.addGeometry([
    Part.Circle(App.Vector(0, 7, 0), App.Vector(0, 0, 1), 6),
    Part.Circle(App.Vector(0, 7, 0), App.Vector(0, 0, 1), 3),
], False)
sketch21.addConstraint([
    Sketcher.Constraint("Coincident", 1, 3, 0, 3),
    Sketcher.Constraint("PointOnObject", 0, 3, -2),
    Sketcher.Constraint("Diameter", 0, 12.0),
    Sketcher.Constraint("Diameter", 1, 6.0),
    Sketcher.Constraint("DistanceY", -1, 1, 0, 3, 7.0),
])
pocket9 = body.newObject("PartDesign::Pocket", "Pocket008")
pocket9.Profile = sketch21
pocket9.Length = 10
pocket9.Reversed = True

# Sketch on XY plane
sketch22 = body.newObject("Sketcher::SketchObject", "Sketch021")
sketch22.AttachmentSupport = (doc.getObject("XY_Plane"), [""])
sketch22.MapMode = "FlatFace"
sketch22.AttachmentOffset = App.Placement(App.Vector(0, 0, 14.6), App.Rotation())
sketch22.addGeometry(Part.Circle(App.Vector(0, 7, 0), App.Vector(0, 0, 1), 3), False)
sketch22.addConstraint([
    Sketcher.Constraint("PointOnObject", 0, 3, -2),
    Sketcher.Constraint("Diameter", 0, 6.0),
    Sketcher.Constraint("DistanceY", -1, 1, 0, 3, 7.0),
])
pocket10 = body.newObject("PartDesign::Pocket", "Pocket009")
pocket10.Profile = sketch22
pocket10.Length = 12
pocket10.Reversed = True

doc.recompute()
